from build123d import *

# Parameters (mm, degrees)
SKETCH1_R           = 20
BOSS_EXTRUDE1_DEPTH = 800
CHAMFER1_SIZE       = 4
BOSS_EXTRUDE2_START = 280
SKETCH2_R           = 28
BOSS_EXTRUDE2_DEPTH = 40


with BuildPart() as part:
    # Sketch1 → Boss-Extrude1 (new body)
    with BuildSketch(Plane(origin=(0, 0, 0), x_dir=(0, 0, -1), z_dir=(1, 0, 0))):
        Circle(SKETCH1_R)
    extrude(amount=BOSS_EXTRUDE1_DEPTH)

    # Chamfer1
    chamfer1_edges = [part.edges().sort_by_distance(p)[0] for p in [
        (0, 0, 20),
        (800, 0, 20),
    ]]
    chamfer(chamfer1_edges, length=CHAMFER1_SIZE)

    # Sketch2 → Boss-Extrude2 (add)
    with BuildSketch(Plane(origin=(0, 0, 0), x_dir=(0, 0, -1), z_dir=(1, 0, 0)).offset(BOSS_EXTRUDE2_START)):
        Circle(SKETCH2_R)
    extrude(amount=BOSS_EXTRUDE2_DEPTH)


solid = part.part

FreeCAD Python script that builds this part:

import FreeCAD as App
import Part
import Sketcher
Q = App.Units.Quantity


def edges_at(feature, points):
    """Names of the edges that pass closest to the given points."""
    edges = feature.Shape.Edges
    near = lambda p: min(range(len(edges)), key=lambda i: edges[i].distToShape(Part.Vertex(*p))[0])
    return sorted({f"Edge{near(p) + 1}" for p in points})

doc = App.newDocument("Part")
params = doc.addObject("Spreadsheet::Sheet", "Params")
for row, (alias, value) in enumerate([
    ("sketch1_diameter", "40 mm"),
    ("pad1_length", "800 mm"),
    ("chamfer_size", "4 mm"),
    ("sketch2_diameter", "56 mm"),
    ("pad2_length", "40 mm"),
], start=1):
    params.set(f"A{row}", alias)
    params.set(f"B{row}", "=" + value)
    params.setAlias(f"B{row}", alias)

body = doc.addObject("PartDesign::Body", "Body")

# Sketch on YZ plane
sketch1 = body.newObject("Sketcher::SketchObject", "Sketch")
sketch1.AttachmentSupport = (doc.getObject("YZ_Plane"), [""])
sketch1.MapMode = "FlatFace"
sketch1.addGeometry(Part.Circle(App.Vector(0, 0, 0), App.Vector(0, 0, 1), 20), False)
sketch1.addConstraint(Sketcher.Constraint("Coincident", 0, 3, -1, 1))
sketch1.addConstraint(Sketcher.Constraint("Diameter", 0, Q("40 mm")))
sketch1.setExpression("Constraints[1]", "Params.sketch1_diameter")
pad1 = body.newObject("PartDesign::Pad", "Pad")
pad1.Profile = sketch1
pad1.setExpression("Length", "Params.pad1_length")
doc.recompute()

chamfer = body.newObject("PartDesign::Chamfer", "Chamfer")
chamfer.Base = (pad1, edges_at(pad1, [(0, 0, 20), (800, 0, 20)]))
chamfer.setExpression("Size", "Params.chamfer_size")

# Sketch on YZ plane
sketch2 = body.newObject("Sketcher::SketchObject", "Sketch001")
sketch2.AttachmentSupport = (doc.getObject("YZ_Plane"), [""])
sketch2.MapMode = "FlatFace"
sketch2.AttachmentOffset = App.Placement(App.Vector(0, 0, 280), App.Rotation())
sketch2.addGeometry(Part.Circle(App.Vector(0, 0, 0), App.Vector(0, 0, 1), 28), False)
sketch2.addConstraint(Sketcher.Constraint("Coincident", 0, 3, -1, 1))
sketch2.addConstraint(Sketcher.Constraint("Diameter", 0, Q("56 mm")))
sketch2.setExpression("Constraints[1]", "Params.sketch2_diameter")
pad2 = body.newObject("PartDesign::Pad", "Pad001")
pad2.Profile = sketch2
pad2.setExpression("Length", "Params.pad2_length")

doc.recompute()
